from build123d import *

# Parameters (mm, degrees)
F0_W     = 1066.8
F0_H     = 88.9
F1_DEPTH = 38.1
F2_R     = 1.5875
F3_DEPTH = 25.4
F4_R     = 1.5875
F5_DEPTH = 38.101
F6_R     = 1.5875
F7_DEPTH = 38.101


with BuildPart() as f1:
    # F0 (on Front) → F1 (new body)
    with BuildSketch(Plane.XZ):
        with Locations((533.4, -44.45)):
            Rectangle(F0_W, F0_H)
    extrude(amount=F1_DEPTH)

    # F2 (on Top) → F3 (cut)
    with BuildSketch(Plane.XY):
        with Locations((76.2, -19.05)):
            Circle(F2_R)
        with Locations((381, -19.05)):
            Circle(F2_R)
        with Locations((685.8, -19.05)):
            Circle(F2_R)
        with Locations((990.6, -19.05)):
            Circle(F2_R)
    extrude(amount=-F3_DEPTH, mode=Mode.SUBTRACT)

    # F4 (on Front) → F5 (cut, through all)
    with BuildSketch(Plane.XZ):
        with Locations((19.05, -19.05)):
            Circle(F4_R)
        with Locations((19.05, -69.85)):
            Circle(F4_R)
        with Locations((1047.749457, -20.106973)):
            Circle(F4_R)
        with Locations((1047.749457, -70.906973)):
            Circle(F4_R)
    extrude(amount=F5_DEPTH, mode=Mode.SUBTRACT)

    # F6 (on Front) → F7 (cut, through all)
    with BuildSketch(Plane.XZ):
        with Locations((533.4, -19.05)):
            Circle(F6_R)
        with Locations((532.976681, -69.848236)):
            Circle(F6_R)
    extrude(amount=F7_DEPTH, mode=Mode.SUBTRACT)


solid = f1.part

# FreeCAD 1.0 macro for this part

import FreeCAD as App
import Part
import Sketcher
from FreeCAD import Vector
Q = App.Units.Quantity

doc = App.newDocument("Part")
body = doc.addObject("PartDesign::Body", "Body")

# Sketch on XZ plane
sketch1 = doc.addObject("Sketcher::SketchObject", "Sketch")
body.addObject(sketch1)
sketch1.AttachmentSupport = (doc.XZ_Plane, [""])
sketch1.MapMode = "FlatFace"
sketch1.addGeometry(Part.LineSegment(Vector(0, 0, 0), Vector(0, -89, 0)), False)
sketch1.addGeometry(Part.LineSegment(Vector(0, -89, 0), Vector(1067, -89, 0)), False)
sketch1.addGeometry(Part.LineSegment(Vector(1067, -89, 0), Vector(1067, 0, 0)), False)
sketch1.addGeometry(Part.LineSegment(Vector(1067, 0, 0), Vector(0, 0, 0)), False)
sketch1.addConstraint(Sketcher.Constraint("Coincident", 0, 2, 1, 1))
sketch1.addConstraint(Sketcher.Constraint("Coincident", 1, 2, 2, 1))
sketch1.addConstraint(Sketcher.Constraint("Coincident", 2, 2, 3, 1))
sketch1.addConstraint(Sketcher.Constraint("Coincident", 3, 2, 0, 1))
sketch1.addConstraint(Sketcher.Constraint("Vertical", 0))
sketch1.addConstraint(Sketcher.Constraint("Horizontal", 1))
sketch1.addConstraint(Sketcher.Constraint("Vertical", 2))
sketch1.addConstraint(Sketcher.Constraint("Horizontal", 3))
sketch1.addConstraint(Sketcher.Constraint("Coincident", 3, 2, -1, 1))
sketch1.addConstraint(Sketcher.Constraint("DistanceX", 1, 1, 1, 2, Q("42 in")))
sketch1.addConstraint(Sketcher.Constraint("DistanceY", 0, 2, 0, 1, Q("3.5 in")))
pad1 = doc.addObject("PartDesign::Pad", "Pad")
body.addObject(pad1)
pad1.Profile = sketch1
pad1.Length = Q("1.5 in")

# Sketch on XY plane
sketch2 = doc.addObject("Sketcher::SketchObject", "Sketch001")
body.addObject(sketch2)
sketch2.AttachmentSupport = (doc.XY_Plane, [""])
sketch2.MapMode = "FlatFace"
sketch2.addGeometry(Part.Circle(Vector(76.2, -19.1, 0), Vector(0, 0, 1), 1.6), False)
sketch2.addGeometry(Part.Circle(Vector(381, -19.1, 0), Vector(0, 0, 1), 1.6), False)
sketch2.addGeometry(Part.Circle(Vector(685.8, -19.1, 0), Vector(0, 0, 1), 1.6), False)
sketch2.addGeometry(Part.Circle(Vector(990.6, -19.1, 0), Vector(0, 0, 1), 1.6), False)
sketch2.addConstraint(Sketcher.Constraint("Equal", 0, 1))
sketch2.addConstraint(Sketcher.Constraint("Equal", 1, 2))
sketch2.addConstraint(Sketcher.Constraint("Equal", 2, 3))
sketch2.addConstraint(Sketcher.Constraint("Horizontal", 0, 3, 1, 3))
sketch2.addConstraint(Sketcher.Constraint("Horizontal", 1, 3, 2, 3))
sketch2.addConstraint(Sketcher.Constraint("Horizontal", 2, 3, 3, 3))
sketch2.addConstraint(Sketcher.Constraint("Diameter", 0, Q("0.125 in")))
sketch2.addConstraint(Sketcher.Constraint("DistanceX", -1, 1, 0, 3, Q("3 in")))
sketch2.addConstraint(Sketcher.Constraint("DistanceX", -1, 1, 1, 3, Q("15 in")))
sketch2.addConstraint(Sketcher.Constraint("DistanceX", -1, 1, 2, 3, Q("27 in")))
sketch2.addConstraint(Sketcher.Constraint("DistanceX", -1, 1, 3, 3, Q("39 in")))
sketch2.addConstraint(Sketcher.Constraint("DistanceY", 0, 3, -1, 1, Q("0.75 in")))
pocket1 = doc.addObject("PartDesign::Pocket", "Pocket")
body.addObject(pocket1)
pocket1.Profile = sketch2
pocket1.Length = Q("1 in")

# Sketch on XZ plane
sketch3 = doc.addObject("Sketcher::SketchObject", "Sketch002")
body.addObject(sketch3)
sketch3.AttachmentSupport = (doc.XZ_Plane, [""])
sketch3.MapMode = "FlatFace"
sketch3.addGeometry(Part.Circle(Vector(19.1, -19.1, 0), Vector(0, 0, 1), 1.6), False)
sketch3.addGeometry(Part.Circle(Vector(19.1, -69.8, 0), Vector(0, 0, 1), 1.6), False)
sketch3.addGeometry(Part.Circle(Vector(1047.7, -20.1, 0), Vector(0, 0, 1), 1.6), False)
sketch3.addGeometry(Part.Circle(Vector(1047.7, -70.9, 0), Vector(0, 0, 1), 1.6), False)
sketch3.addConstraint(Sketcher.Constraint("Equal", 0, 1))
sketch3.addConstraint(Sketcher.Constraint("Equal", 1, 2))
sketch3.addConstraint(Sketcher.Constraint("Equal", 2, 3))
sketch3.addConstraint(Sketcher.Constraint("Vertical", 0, 3, 1, 3))
sketch3.addConstraint(Sketcher.Constraint("Vertical", 2, 3, 3, 3))
sketch3.addConstraint(Sketcher.Constraint("Diameter", 0, Q("0.125 in")))
sketch3.addConstraint(Sketcher.Constraint("DistanceY", 1, 3, 0, 3, Q("2 in")))
sketch3.addConstraint(Sketcher.Constraint("DistanceY", 3, 3, 2, 3, Q("2 in")))
sketch3.addConstraint(Sketcher.Constraint("DistanceX", -1, 1, 0, 3, Q("0.75 in")))
sketch3.addConstraint(Sketcher.Constraint("DistanceY", 0, 3, -1, 1, Q("0.75 in")))
sketch3.addConstraint(Sketcher.Constraint("DistanceX", -1, 1, 2, 3, Q("1047.749457 mm")))
sketch3.addConstraint(Sketcher.Constraint("DistanceY", 2, 3, -1, 1, Q("20.106973 mm")))
pocket2 = doc.addObject("PartDesign::Pocket", "Pocket001")
body.addObject(pocket2)
pocket2.Profile = sketch3
pocket2.Type = "ThroughAll"
pocket2.Reversed = True

# Sketch on XZ plane
sketch4 = doc.addObject("Sketcher::SketchObject", "Sketch003")
body.addObject(sketch4)
sketch4.AttachmentSupport = (doc.XZ_Plane, [""])
sketch4.MapMode = "FlatFace"
sketch4.addGeometry(Part.Circle(Vector(533.4, -19.1, 0), Vector(0, 0, 1), 1.6), False)
sketch4.addGeometry(Part.Circle(Vector(533, -69.8, 0), Vector(0, 0, 1), 1.6), False)
sketch4.addConstraint(Sketcher.Constraint("Equal", 0, 1))
sketch4.addConstraint(Sketcher.Constraint("Diameter", 0, Q("0.125 in")))
sketch4.addConstraint(Sketcher.Constraint("DistanceX", -1, 1, 0, 3, Q("21 in")))
sketch4.addConstraint(Sketcher.Constraint("DistanceY", 0, 3, -1, 1, Q("0.75 in")))
sketch4.addConstraint(Sketcher.Constraint("DistanceX", -1, 1, 1, 3, Q("532.976681 mm")))
sketch4.addConstraint(Sketcher.Constraint("DistanceY", 1, 3, -1, 1, Q("69.848236 mm")))
pocket3 = doc.addObject("PartDesign::Pocket", "Pocket002")
body.addObject(pocket3)
pocket3.Profile = sketch4
pocket3.Type = "ThroughAll"
pocket3.Reversed = True

doc.recompute()
